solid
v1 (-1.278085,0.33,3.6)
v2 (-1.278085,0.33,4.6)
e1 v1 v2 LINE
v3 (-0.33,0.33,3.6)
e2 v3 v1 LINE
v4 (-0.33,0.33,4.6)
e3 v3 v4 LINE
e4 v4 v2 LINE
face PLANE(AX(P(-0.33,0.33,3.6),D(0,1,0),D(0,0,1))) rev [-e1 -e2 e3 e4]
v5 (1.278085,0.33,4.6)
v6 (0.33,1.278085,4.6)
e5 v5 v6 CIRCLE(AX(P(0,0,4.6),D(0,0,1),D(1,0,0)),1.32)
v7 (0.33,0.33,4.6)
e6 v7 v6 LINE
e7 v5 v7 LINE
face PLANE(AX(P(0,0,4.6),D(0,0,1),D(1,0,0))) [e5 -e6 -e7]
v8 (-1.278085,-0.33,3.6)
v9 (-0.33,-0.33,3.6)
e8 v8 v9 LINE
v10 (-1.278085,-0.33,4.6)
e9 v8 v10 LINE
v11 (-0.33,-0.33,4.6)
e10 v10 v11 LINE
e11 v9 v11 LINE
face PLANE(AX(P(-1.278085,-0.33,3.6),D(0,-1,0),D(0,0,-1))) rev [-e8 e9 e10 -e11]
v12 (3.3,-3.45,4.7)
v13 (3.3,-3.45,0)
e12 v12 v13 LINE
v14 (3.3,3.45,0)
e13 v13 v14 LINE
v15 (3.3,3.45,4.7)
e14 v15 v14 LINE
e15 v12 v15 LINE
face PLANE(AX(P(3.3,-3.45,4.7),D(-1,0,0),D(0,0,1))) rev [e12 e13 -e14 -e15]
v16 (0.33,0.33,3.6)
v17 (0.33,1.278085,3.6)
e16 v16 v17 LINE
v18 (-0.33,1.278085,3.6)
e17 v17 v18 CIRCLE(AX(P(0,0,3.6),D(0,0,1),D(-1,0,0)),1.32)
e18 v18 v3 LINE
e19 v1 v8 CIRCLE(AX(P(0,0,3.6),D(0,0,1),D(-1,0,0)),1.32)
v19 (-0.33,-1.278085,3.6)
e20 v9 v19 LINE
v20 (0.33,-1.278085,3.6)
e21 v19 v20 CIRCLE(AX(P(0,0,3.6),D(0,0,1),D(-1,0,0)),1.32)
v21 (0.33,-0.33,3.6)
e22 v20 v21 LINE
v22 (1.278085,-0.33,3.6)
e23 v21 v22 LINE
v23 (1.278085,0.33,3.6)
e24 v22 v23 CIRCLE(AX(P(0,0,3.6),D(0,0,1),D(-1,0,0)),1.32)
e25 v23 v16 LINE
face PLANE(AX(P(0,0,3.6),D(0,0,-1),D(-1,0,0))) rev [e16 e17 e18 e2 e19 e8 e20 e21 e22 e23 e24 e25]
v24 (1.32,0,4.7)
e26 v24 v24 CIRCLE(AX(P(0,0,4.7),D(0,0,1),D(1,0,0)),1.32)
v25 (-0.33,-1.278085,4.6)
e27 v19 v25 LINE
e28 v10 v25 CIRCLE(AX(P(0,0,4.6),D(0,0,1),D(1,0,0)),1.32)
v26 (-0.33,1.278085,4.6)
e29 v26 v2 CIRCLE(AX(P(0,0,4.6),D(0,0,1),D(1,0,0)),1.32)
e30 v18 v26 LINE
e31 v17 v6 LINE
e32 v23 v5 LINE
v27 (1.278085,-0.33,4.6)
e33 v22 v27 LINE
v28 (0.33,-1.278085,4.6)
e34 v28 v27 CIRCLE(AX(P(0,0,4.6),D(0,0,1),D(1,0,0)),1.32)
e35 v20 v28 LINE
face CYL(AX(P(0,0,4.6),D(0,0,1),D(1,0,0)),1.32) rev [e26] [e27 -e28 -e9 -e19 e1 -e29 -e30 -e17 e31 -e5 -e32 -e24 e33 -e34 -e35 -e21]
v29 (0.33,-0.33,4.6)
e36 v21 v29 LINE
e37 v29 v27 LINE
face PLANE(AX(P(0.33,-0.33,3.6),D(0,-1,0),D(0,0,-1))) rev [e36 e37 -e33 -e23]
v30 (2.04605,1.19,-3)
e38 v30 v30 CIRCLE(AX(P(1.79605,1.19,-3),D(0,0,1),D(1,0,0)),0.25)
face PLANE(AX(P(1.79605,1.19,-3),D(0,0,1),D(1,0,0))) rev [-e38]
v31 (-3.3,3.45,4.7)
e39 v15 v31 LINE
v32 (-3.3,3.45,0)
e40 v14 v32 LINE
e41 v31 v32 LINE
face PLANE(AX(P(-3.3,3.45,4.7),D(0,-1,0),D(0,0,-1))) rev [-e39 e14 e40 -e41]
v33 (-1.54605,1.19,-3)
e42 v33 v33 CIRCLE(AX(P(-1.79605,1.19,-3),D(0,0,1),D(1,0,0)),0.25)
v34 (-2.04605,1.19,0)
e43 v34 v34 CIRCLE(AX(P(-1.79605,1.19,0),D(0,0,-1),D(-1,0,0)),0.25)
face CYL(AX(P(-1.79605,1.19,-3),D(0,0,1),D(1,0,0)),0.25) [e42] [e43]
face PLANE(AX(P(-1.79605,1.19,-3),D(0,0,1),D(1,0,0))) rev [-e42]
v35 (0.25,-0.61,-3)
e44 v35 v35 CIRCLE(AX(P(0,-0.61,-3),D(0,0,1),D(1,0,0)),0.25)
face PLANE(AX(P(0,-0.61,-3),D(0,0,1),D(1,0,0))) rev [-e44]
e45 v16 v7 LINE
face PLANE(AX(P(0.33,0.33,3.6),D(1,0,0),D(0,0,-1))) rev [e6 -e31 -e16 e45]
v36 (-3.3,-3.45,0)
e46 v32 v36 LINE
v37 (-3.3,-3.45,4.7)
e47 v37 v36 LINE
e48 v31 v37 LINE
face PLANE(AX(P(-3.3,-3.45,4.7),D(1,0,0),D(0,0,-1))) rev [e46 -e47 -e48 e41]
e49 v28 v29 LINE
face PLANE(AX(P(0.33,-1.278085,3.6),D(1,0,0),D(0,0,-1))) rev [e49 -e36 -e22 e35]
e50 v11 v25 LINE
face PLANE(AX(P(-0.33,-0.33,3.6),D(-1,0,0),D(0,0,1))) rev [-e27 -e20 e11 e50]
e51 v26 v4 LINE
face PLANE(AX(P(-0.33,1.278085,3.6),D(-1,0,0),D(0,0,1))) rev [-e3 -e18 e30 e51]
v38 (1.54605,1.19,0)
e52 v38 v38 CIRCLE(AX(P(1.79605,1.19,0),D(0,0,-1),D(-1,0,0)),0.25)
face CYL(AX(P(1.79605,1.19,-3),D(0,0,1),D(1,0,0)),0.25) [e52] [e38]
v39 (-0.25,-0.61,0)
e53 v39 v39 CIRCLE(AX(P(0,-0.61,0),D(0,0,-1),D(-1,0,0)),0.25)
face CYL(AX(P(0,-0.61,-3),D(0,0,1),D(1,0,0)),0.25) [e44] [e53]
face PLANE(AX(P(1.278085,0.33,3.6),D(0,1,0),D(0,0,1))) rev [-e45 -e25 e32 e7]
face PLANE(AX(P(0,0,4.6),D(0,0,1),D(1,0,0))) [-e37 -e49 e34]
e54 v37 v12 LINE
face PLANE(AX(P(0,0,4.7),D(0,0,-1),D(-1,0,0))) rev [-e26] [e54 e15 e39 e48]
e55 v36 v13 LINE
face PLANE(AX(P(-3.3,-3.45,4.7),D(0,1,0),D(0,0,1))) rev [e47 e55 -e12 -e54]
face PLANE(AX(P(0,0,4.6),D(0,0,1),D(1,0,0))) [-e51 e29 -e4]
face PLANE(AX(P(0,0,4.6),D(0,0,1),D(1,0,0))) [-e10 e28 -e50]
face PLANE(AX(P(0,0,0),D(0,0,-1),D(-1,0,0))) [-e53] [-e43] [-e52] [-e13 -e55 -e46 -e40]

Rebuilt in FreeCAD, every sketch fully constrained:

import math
import FreeCAD as App
import Part
import Sketcher

doc = App.newDocument("Part")
params = doc.addObject("Spreadsheet::Sheet", "Params")
for row, (alias, value) in enumerate([
    ("sketch1_width", "6.6 mm"),
    ("sketch1_height", "6.9 mm"),
    ("pad1_length", "4.7 mm"),
    ("sketch2_diameter", "2.64 mm"),
    ("pocket1_length", "0.1 mm"),
    ("sketch3_radius", "1.32 mm"),
    ("pocket2_length", "1 mm"),
    ("sketch4_diameter", "0.5 mm"),
    ("pad2_length", "3 mm"),
], start=1):
    params.set(f"A{row}", alias)
    params.set(f"B{row}", "=" + value)
    params.setAlias(f"B{row}", alias)

body = doc.addObject("PartDesign::Body", "Body")

# Sketch on XY plane
sketch1 = body.newObject("Sketcher::SketchObject", "Sketch")
sketch1.AttachmentSupport = (doc.getObject("XY_Plane"), [""])
sketch1.MapMode = "FlatFace"
sketch1.addGeometry(Part.LineSegment(App.Vector(-3, 3, 0), App.Vector(-3, -3, 0)), False)
sketch1.addGeometry(Part.LineSegment(App.Vector(-3, -3, 0), App.Vector(3, -3, 0)), False)
sketch1.addGeometry(Part.LineSegment(App.Vector(3, -3, 0), App.Vector(3, 3, 0)), False)
sketch1.addGeometry(Part.LineSegment(App.Vector(3, 3, 0), App.Vector(-3, 3, 0)), False)
sketch1.addConstraint(Sketcher.Constraint("Coincident", 0, 2, 1, 1))
sketch1.addConstraint(Sketcher.Constraint("Coincident", 1, 2, 2, 1))
sketch1.addConstraint(Sketcher.Constraint("Coincident", 2, 2, 3, 1))
sketch1.addConstraint(Sketcher.Constraint("Coincident", 3, 2, 0, 1))
sketch1.addConstraint(Sketcher.Constraint("Vertical", 0))
sketch1.addConstraint(Sketcher.Constraint("Horizontal", 1))
sketch1.addConstraint(Sketcher.Constraint("Vertical", 2))
sketch1.addConstraint(Sketcher.Constraint("Horizontal", 3))
sketch1.addConstraint(Sketcher.Constraint("Symmetric", 0, 2, 2, 2, -1, 1))
sketch1.addConstraint(Sketcher.Constraint("DistanceX", 1, 1, 1, 2, 6.6))
sketch1.addConstraint(Sketcher.Constraint("DistanceY", 0, 2, 0, 1, 6.9))
sketch1.setExpression("Constraints[9]", "Params.sketch1_width")
sketch1.setExpression("Constraints[10]", "Params.sketch1_height")
pad1 = body.newObject("PartDesign::Pad", "Pad")
pad1.Profile = sketch1
pad1.setExpression("Length", "Params.pad1_length")

# Sketch on XY plane
sketch2 = body.newObject("Sketcher::SketchObject", "Sketch001")
sketch2.AttachmentSupport = (doc.getObject("XY_Plane"), [""])
sketch2.MapMode = "FlatFace"
sketch2.AttachmentOffset = App.Placement(App.Vector(0, 0, 4.7), App.Rotation())
sketch2.addGeometry(Part.Circle(App.Vector(0, 0, 0), App.Vector(0, 0, 1), 1.3), False)
sketch2.addConstraint(Sketcher.Constraint("Coincident", 0, 3, -1, 1))
sketch2.addConstraint(Sketcher.Constraint("Diameter", 0, 2.64))
sketch2.setExpression("Constraints[1]", "Params.sketch2_diameter")
pocket1 = body.newObject("PartDesign::Pocket", "Pocket")
pocket1.Profile = sketch2
pocket1.setExpression("Length", "Params.pocket1_length")

# Sketch on XY plane
sketch3 = body.newObject("Sketcher::SketchObject", "Sketch002")
sketch3.AttachmentSupport = (doc.getObject("XY_Plane"), [""])
sketch3.MapMode = "FlatFace"
sketch3.AttachmentOffset = App.Placement(App.Vector(0, 0, 4.6), App.Rotation())
sketch3.addGeometry(Part.LineSegment(App.Vector(-0.3, 1.3, 0), App.Vector(-0.3, 0.3, 0)), False)
sketch3.addGeometry(Part.LineSegment(App.Vector(-0.3, 0.3, 0), App.Vector(-1.3, 0.3, 0)), False)
sketch3.addGeometry(Part.ArcOfCircle(Part.Circle(App.Vector(0, 0, 0), App.Vector(0, 0, 1), 1.3), math.radians(166), math.radians(194)), False)
sketch3.addGeometry(Part.LineSegment(App.Vector(-1.3, -0.3, 0), App.Vector(-0.3, -0.3, 0)), False)
sketch3.addGeometry(Part.LineSegment(App.Vector(-0.3, -0.3, 0), App.Vector(-0.3, -1.3, 0)), False)
sketch3.addGeometry(Part.ArcOfCircle(Part.Circle(App.Vector(0, 0, 0), App.Vector(0, 0, 1), 1.3), math.radians(-104), math.radians(-76)), False)
sketch3.addGeometry(Part.LineSegment(App.Vector(0.3, -1.3, 0), App.Vector(0.3, -0.3, 0)), False)
sketch3.addGeometry(Part.LineSegment(App.Vector(0.3, -0.3, 0), App.Vector(1.3, -0.3, 0)), False)
sketch3.addGeometry(Part.ArcOfCircle(Part.Circle(App.Vector(0, 0, 0), App.Vector(0, 0, 1), 1.3), math.radians(-14), math.radians(14)), False)
sketch3.addGeometry(Part.LineSegment(App.Vector(1.3, 0.3, 0), App.Vector(0.3, 0.3, 0)), False)
sketch3.addGeometry(Part.LineSegment(App.Vector(0.3, 0.3, 0), App.Vector(0.3, 1.3, 0)), False)
sketch3.addGeometry(Part.ArcOfCircle(Part.Circle(App.Vector(0, 0, 0), App.Vector(0, 0, 1), 1.3), math.radians(76), math.radians(104)), False)
sketch3.addConstraint(Sketcher.Constraint("Coincident", 0, 2, 1, 1))
sketch3.addConstraint(Sketcher.Constraint("Coincident", 1, 2, 2, 1))
sketch3.addConstraint(Sketcher.Constraint("Coincident", 2, 2, 3, 1))
sketch3.addConstraint(Sketcher.Constraint("Coincident", 3, 2, 4, 1))
sketch3.addConstraint(Sketcher.Constraint("Coincident", 4, 2, 5, 1))
sketch3.addConstraint(Sketcher.Constraint("Coincident", 5, 2, 6, 1))
sketch3.addConstraint(Sketcher.Constraint("Coincident", 6, 2, 7, 1))
sketch3.addConstraint(Sketcher.Constraint("Coincident", 7, 2, 8, 1))
sketch3.addConstraint(Sketcher.Constraint("Coincident", 8, 2, 9, 1))
sketch3.addConstraint(Sketcher.Constraint("Coincident", 9, 2, 10, 1))
sketch3.addConstraint(Sketcher.Constraint("Coincident", 10, 2, 11, 1))
sketch3.addConstraint(Sketcher.Constraint("Coincident", 11, 2, 0, 1))
sketch3.addConstraint(Sketcher.Constraint("Vertical", 0))
sketch3.addConstraint(Sketcher.Constraint("Horizontal", 1))
sketch3.addConstraint(Sketcher.Constraint("Horizontal", 3))
sketch3.addConstraint(Sketcher.Constraint("Vertical", 4))
sketch3.addConstraint(Sketcher.Constraint("Vertical", 6))
sketch3.addConstraint(Sketcher.Constraint("Horizontal", 7))
sketch3.addConstraint(Sketcher.Constraint("Horizontal", 9))
sketch3.addConstraint(Sketcher.Constraint("Vertical", 10))
sketch3.addConstraint(Sketcher.Constraint("Coincident", 2, 3, -1, 1))
sketch3.addConstraint(Sketcher.Constraint("Coincident", 5, 3, -1, 1))
sketch3.addConstraint(Sketcher.Constraint("Coincident", 8, 3, -1, 1))
sketch3.addConstraint(Sketcher.Constraint("Coincident", 11, 3, -1, 1))
sketch3.addConstraint(Sketcher.Constraint("Equal", 2, 5))
sketch3.addConstraint(Sketcher.Constraint("Equal", 5, 8))
sketch3.addConstraint(Sketcher.Constraint("Equal", 8, 11))
sketch3.addConstraint(Sketcher.Constraint("Symmetric", 0, 2, 6, 2, -1, 1))
sketch3.addConstraint(Sketcher.Constraint("Symmetric", 3, 2, 9, 2, -1, 1))
sketch3.addConstraint(Sketcher.Constraint("Symmetric", 3, 2, 6, 2, -2))
sketch3.addConstraint(Sketcher.Constraint("Equal", 9, 0))
sketch3.addConstraint(Sketcher.Constraint("Radius", 2, 1.32))
sketch3.addConstraint(Sketcher.Constraint("DistanceX", 0, 2, -1, 1, 0.33))
sketch3.setExpression("Constraints[31]", "Params.sketch3_radius")
pocket2 = body.newObject("PartDesign::Pocket", "Pocket001")
pocket2.Profile = sketch3
pocket2.setExpression("Length", "Params.pocket2_length")

# Sketch on XY plane
sketch4 = body.newObject("Sketcher::SketchObject", "Sketch003")
sketch4.AttachmentSupport = (doc.getObject("XY_Plane"), [""])
sketch4.MapMode = "FlatFace"
sketch4.addGeometry(Part.Circle(App.Vector(1.8, 1.19, 0), App.Vector(0, 0, 1), 0.25), False)
sketch4.addGeometry(Part.Circle(App.Vector(-1.8, 1.19, 0), App.Vector(0, 0, 1), 0.25), False)
sketch4.addGeometry(Part.Circle(App.Vector(0, -0.61, 0), App.Vector(0, 0, 1), 0.25), False)
sketch4.addConstraint(Sketcher.Constraint("Equal", 0, 1))
sketch4.addConstraint(Sketcher.Constraint("Equal", 1, 2))
sketch4.addConstraint(Sketcher.Constraint("Symmetric", 0, 3, 1, 3, -2))
sketch4.addConstraint(Sketcher.Constraint("PointOnObject", 2, 3, -2))
sketch4.addConstraint(Sketcher.Constraint("Diameter", 0, 0.5))
sketch4.addConstraint(Sketcher.Constraint("DistanceY", 2, 3, 0, 3, 1.8))
sketch4.addConstraint(Sketcher.Constraint("DistanceY", -1, 1, 0, 3, 1.19))
sketch4.addConstraint(Sketcher.Constraint("DistanceX", 1, 3, 0, 3, 3.5921))
sketch4.setExpression("Constraints[4]", "Params.sketch4_diameter")
pad2 = body.newObject("PartDesign::Pad", "Pad001")
pad2.Profile = sketch4
pad2.setExpression("Length", "Params.pad2_length")
pad2.Reversed = True

doc.recompute()
